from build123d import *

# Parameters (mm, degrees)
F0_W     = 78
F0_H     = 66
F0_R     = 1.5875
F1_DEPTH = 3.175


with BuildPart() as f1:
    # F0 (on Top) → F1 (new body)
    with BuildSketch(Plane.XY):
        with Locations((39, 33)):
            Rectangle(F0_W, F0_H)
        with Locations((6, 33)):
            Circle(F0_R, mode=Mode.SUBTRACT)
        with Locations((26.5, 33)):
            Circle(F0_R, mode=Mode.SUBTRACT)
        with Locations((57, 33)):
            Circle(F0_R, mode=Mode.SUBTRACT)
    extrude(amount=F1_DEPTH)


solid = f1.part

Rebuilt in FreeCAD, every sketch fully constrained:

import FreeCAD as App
import Part
import Sketcher

V = App.Vector


def add_polygon(sketch, points):
    """Adds a closed chain of lines whose ends are joined by coincident constraints."""
    first, n = sketch.GeometryCount, len(points)
    for a, b in zip(points, points[1:] + points[:1]):
        sketch.addGeometry(Part.LineSegment(App.Vector(*a, 0), App.Vector(*b, 0)), False)
    for i in range(n):
        sketch.addConstraint(Sketcher.Constraint("Coincident", first + i, 2, first + (i + 1) % n, 1))

doc = App.newDocument("Part")
body = doc.addObject("PartDesign::Body", "Body")

# Sketch on XY plane
sketch1 = body.newObject("Sketcher::SketchObject", "Sketch")
sketch1.AttachmentSupport = (doc.getObject("XY_Plane"), [""])
sketch1.MapMode = "FlatFace"
add_polygon(sketch1, [(0, 66), (0, 0), (78, 0), (78, 66)])  # lines 0-3
sketch1.addGeometry(Part.Circle(V(6, 33, 0), V(0, 0, 1), 1.6), False)  # 4
sketch1.addGeometry(Part.Circle(V(26.5, 33, 0), V(0, 0, 1), 1.6), False)  # 5
sketch1.addGeometry(Part.Circle(V(57, 33, 0), V(0, 0, 1), 1.6), False)  # 6
sketch1.addConstraint([
    Sketcher.Constraint("Vertical", 0),
    Sketcher.Constraint("Horizontal", 1),
    Sketcher.Constraint("Vertical", 2),
    Sketcher.Constraint("Horizontal", 3),
    Sketcher.Constraint("Coincident", 0, 2, -1, 1),
    Sketcher.Constraint("Equal", 4, 5),
    Sketcher.Constraint("Equal", 5, 6),
    Sketcher.Constraint("Horizontal", 4, 3, 5, 3),
    Sketcher.Constraint("Horizontal", 5, 3, 6, 3),
    Sketcher.Constraint("DistanceX", 1, 1, 1, 2, 78.0),
    Sketcher.Constraint("DistanceY", 0, 2, 0, 1, 66.0),
    Sketcher.Constraint("Diameter", 4, 3.175),
    Sketcher.Constraint("DistanceX", -1, 1, 4, 3, 6.0),
    Sketcher.Constraint("DistanceY", -1, 1, 4, 3, 33.0),
    Sketcher.Constraint("DistanceX", -1, 1, 6, 3, 57.0),
    Sketcher.Constraint("DistanceX", -1, 1, 5, 3, 26.5),
])
pad1 = body.newObject("PartDesign::Pad", "Pad")
pad1.Profile = sketch1
pad1.Length = 3.175

doc.recompute()
